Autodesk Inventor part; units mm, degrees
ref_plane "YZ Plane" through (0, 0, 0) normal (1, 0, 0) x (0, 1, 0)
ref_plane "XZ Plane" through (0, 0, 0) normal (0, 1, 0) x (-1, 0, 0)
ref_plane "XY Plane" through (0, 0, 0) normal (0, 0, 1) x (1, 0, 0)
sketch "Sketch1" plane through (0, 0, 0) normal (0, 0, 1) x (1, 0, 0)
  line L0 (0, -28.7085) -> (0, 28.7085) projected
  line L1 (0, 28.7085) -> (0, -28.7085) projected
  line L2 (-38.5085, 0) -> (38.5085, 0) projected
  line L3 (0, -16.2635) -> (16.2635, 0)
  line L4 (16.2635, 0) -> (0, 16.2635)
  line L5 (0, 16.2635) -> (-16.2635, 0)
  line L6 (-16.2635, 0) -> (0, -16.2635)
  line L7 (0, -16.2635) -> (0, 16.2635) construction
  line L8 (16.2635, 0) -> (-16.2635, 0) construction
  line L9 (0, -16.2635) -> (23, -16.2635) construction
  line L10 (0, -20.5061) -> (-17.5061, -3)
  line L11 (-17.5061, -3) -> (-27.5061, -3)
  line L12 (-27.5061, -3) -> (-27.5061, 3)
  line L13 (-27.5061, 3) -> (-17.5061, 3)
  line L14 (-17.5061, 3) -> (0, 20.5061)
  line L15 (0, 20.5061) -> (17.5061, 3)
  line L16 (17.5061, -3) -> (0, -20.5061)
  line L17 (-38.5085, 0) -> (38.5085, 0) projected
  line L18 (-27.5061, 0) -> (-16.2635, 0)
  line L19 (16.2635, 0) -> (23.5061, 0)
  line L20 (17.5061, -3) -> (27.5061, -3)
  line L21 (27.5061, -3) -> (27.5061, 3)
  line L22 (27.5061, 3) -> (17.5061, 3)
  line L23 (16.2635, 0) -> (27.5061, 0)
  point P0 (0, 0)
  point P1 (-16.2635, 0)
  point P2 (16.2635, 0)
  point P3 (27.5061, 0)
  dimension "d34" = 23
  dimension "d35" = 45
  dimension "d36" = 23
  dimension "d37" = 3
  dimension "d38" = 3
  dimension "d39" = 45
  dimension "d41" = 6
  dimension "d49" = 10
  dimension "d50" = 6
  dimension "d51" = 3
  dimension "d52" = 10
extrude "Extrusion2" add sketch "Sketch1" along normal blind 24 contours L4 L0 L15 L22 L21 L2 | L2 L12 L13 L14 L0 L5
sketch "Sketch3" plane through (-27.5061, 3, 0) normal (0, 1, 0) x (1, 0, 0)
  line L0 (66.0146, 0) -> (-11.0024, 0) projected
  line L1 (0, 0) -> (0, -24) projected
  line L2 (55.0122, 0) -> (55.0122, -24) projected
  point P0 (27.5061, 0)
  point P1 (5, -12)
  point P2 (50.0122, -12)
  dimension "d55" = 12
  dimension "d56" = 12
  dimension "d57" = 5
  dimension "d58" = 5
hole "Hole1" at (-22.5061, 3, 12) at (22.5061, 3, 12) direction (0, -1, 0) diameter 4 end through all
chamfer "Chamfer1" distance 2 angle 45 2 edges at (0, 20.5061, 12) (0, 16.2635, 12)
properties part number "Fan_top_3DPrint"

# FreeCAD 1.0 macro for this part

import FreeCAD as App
import Part
import Sketcher
Q = App.Units.Quantity


def edges_at(feature, points):
    """Names of the edges that pass closest to the given points."""
    edges = feature.Shape.Edges
    near = lambda p: min(range(len(edges)), key=lambda i: edges[i].distToShape(Part.Vertex(*p))[0])
    return sorted({f"Edge{near(p) + 1}" for p in points})


def add_polygon(sketch, points):
    """Adds a closed chain of lines whose ends are joined by coincident constraints."""
    first, n = sketch.GeometryCount, len(points)
    for a, b in zip(points, points[1:] + points[:1]):
        sketch.addGeometry(Part.LineSegment(App.Vector(*a, 0), App.Vector(*b, 0)), False)
    for i in range(n):
        sketch.addConstraint(Sketcher.Constraint("Coincident", first + i, 2, first + (i + 1) % n, 1))

doc = App.newDocument("Part")
params = doc.addObject("Spreadsheet::Sheet", "Params")
for row, (alias, value) in enumerate([
    ("sketch1_width", "10 mm"),
    ("sketch1_height", "3 mm"),
    ("sketch1_length", "23 mm"),
    ("pad1_length", "24 mm"),
    ("sketch2_diameter", "4 mm"),
    ("hole_diameter", "4 mm"),
    ("chamfer_size", "2 mm"),
], start=1):
    params.set(f"A{row}", alias)
    params.set(f"B{row}", "=" + value)
    params.setAlias(f"B{row}", alias)

body = doc.addObject("PartDesign::Body", "Body")

sketch1 = body.newObject("Sketcher::SketchObject", "Sketch")
sketch1.AttachmentSupport = (doc.getObject("XY_Plane"), [""])
sketch1.MapMode = "FlatFace"
add_polygon(sketch1, [(0, 16.2635), (16.2635, 0), (27.5061, 0), (27.5061, 3), (17.5061, 3), (0, 20.5061), (-17.5061, 3), (-27.5061, 3), (-27.5061, 0), (-16.2635, 0)])
sketch1.addConstraint([
    Sketcher.Constraint("Horizontal", 1),
    Sketcher.Constraint("Vertical", 2),
    Sketcher.Constraint("Horizontal", 3),
    Sketcher.Constraint("Horizontal", 6),
    Sketcher.Constraint("Vertical", 7),
    Sketcher.Constraint("Horizontal", 8),
    Sketcher.Constraint("Symmetric", 1, 2, 7, 2, -1, 1),
    Sketcher.Constraint("Symmetric", 3, 2, 5, 2, -2),
    Sketcher.Constraint("Symmetric", 0, 2, 8, 2, -2),
    Sketcher.Constraint("PointOnObject", 4, 2, -2),
    Sketcher.Constraint("PointOnObject", 9, 2, -2),
    Sketcher.Constraint("Parallel", 0, 4),
    Sketcher.Constraint("Perpendicular", 4, 5),
    Sketcher.Constraint("DistanceX", 3, 2, 3, 1, Q("10 mm")),
    Sketcher.Constraint("DistanceY", 2, 1, 2, 2, Q("3 mm")),
    Sketcher.Constraint("Distance", 0, Q("23 mm")),
    Sketcher.Constraint("DistanceX", 1, 1, 1, 2, Q("11.2426 mm")),
])
sketch1.setExpression("Constraints[23]", "Params.sketch1_width")
sketch1.setExpression("Constraints[24]", "Params.sketch1_height")
sketch1.setExpression("Constraints[25]", "Params.sketch1_length")
pad1 = body.newObject("PartDesign::Pad", "Pad")
pad1.Profile = sketch1
pad1.setExpression("Length", "Params.pad1_length")

sketch2 = body.newObject("Sketcher::SketchObject", "Sketch001")
sketch2.AttachmentSupport = (doc.getObject("XZ_Plane"), [""])
sketch2.MapMode = "FlatFace"
sketch2.AttachmentOffset = App.Placement(App.Vector(0, 0, -3), App.Rotation())
sketch2.addGeometry([
    Part.Circle(App.Vector(-22.5061, 12, 0), App.Vector(0, 0, 1), 2),
    Part.Circle(App.Vector(22.5061, 12, 0), App.Vector(0, 0, 1), 2),
], False)
sketch2.addConstraint([
    Sketcher.Constraint("Equal", 0, 1),
    Sketcher.Constraint("Symmetric", 0, 3, 1, 3, -2),
    Sketcher.Constraint("Diameter", 0, Q("4 mm")),
    Sketcher.Constraint("DistanceY", -1, 1, 0, 3, Q("12 mm")),
    Sketcher.Constraint("DistanceX", 0, 3, -1, 1, Q("22.506 mm")),
])
sketch2.setExpression("Constraints[2]", "Params.sketch2_diameter")
doc.recompute()
hole = body.newObject("PartDesign::Hole", "Hole")
hole.Profile = sketch2
hole.ThreadType = "None"
hole.setExpression("Diameter", "Params.hole_diameter")
hole.DepthType = "ThroughAll"
hole.Reversed = True
doc.recompute()

chamfer = body.newObject("PartDesign::Chamfer", "Chamfer")
chamfer.Base = (hole, edges_at(hole, [(0, 20.506, 12), (0, 16.264, 12)]))
chamfer.setExpression("Size", "Params.chamfer_size")

doc.recompute()
